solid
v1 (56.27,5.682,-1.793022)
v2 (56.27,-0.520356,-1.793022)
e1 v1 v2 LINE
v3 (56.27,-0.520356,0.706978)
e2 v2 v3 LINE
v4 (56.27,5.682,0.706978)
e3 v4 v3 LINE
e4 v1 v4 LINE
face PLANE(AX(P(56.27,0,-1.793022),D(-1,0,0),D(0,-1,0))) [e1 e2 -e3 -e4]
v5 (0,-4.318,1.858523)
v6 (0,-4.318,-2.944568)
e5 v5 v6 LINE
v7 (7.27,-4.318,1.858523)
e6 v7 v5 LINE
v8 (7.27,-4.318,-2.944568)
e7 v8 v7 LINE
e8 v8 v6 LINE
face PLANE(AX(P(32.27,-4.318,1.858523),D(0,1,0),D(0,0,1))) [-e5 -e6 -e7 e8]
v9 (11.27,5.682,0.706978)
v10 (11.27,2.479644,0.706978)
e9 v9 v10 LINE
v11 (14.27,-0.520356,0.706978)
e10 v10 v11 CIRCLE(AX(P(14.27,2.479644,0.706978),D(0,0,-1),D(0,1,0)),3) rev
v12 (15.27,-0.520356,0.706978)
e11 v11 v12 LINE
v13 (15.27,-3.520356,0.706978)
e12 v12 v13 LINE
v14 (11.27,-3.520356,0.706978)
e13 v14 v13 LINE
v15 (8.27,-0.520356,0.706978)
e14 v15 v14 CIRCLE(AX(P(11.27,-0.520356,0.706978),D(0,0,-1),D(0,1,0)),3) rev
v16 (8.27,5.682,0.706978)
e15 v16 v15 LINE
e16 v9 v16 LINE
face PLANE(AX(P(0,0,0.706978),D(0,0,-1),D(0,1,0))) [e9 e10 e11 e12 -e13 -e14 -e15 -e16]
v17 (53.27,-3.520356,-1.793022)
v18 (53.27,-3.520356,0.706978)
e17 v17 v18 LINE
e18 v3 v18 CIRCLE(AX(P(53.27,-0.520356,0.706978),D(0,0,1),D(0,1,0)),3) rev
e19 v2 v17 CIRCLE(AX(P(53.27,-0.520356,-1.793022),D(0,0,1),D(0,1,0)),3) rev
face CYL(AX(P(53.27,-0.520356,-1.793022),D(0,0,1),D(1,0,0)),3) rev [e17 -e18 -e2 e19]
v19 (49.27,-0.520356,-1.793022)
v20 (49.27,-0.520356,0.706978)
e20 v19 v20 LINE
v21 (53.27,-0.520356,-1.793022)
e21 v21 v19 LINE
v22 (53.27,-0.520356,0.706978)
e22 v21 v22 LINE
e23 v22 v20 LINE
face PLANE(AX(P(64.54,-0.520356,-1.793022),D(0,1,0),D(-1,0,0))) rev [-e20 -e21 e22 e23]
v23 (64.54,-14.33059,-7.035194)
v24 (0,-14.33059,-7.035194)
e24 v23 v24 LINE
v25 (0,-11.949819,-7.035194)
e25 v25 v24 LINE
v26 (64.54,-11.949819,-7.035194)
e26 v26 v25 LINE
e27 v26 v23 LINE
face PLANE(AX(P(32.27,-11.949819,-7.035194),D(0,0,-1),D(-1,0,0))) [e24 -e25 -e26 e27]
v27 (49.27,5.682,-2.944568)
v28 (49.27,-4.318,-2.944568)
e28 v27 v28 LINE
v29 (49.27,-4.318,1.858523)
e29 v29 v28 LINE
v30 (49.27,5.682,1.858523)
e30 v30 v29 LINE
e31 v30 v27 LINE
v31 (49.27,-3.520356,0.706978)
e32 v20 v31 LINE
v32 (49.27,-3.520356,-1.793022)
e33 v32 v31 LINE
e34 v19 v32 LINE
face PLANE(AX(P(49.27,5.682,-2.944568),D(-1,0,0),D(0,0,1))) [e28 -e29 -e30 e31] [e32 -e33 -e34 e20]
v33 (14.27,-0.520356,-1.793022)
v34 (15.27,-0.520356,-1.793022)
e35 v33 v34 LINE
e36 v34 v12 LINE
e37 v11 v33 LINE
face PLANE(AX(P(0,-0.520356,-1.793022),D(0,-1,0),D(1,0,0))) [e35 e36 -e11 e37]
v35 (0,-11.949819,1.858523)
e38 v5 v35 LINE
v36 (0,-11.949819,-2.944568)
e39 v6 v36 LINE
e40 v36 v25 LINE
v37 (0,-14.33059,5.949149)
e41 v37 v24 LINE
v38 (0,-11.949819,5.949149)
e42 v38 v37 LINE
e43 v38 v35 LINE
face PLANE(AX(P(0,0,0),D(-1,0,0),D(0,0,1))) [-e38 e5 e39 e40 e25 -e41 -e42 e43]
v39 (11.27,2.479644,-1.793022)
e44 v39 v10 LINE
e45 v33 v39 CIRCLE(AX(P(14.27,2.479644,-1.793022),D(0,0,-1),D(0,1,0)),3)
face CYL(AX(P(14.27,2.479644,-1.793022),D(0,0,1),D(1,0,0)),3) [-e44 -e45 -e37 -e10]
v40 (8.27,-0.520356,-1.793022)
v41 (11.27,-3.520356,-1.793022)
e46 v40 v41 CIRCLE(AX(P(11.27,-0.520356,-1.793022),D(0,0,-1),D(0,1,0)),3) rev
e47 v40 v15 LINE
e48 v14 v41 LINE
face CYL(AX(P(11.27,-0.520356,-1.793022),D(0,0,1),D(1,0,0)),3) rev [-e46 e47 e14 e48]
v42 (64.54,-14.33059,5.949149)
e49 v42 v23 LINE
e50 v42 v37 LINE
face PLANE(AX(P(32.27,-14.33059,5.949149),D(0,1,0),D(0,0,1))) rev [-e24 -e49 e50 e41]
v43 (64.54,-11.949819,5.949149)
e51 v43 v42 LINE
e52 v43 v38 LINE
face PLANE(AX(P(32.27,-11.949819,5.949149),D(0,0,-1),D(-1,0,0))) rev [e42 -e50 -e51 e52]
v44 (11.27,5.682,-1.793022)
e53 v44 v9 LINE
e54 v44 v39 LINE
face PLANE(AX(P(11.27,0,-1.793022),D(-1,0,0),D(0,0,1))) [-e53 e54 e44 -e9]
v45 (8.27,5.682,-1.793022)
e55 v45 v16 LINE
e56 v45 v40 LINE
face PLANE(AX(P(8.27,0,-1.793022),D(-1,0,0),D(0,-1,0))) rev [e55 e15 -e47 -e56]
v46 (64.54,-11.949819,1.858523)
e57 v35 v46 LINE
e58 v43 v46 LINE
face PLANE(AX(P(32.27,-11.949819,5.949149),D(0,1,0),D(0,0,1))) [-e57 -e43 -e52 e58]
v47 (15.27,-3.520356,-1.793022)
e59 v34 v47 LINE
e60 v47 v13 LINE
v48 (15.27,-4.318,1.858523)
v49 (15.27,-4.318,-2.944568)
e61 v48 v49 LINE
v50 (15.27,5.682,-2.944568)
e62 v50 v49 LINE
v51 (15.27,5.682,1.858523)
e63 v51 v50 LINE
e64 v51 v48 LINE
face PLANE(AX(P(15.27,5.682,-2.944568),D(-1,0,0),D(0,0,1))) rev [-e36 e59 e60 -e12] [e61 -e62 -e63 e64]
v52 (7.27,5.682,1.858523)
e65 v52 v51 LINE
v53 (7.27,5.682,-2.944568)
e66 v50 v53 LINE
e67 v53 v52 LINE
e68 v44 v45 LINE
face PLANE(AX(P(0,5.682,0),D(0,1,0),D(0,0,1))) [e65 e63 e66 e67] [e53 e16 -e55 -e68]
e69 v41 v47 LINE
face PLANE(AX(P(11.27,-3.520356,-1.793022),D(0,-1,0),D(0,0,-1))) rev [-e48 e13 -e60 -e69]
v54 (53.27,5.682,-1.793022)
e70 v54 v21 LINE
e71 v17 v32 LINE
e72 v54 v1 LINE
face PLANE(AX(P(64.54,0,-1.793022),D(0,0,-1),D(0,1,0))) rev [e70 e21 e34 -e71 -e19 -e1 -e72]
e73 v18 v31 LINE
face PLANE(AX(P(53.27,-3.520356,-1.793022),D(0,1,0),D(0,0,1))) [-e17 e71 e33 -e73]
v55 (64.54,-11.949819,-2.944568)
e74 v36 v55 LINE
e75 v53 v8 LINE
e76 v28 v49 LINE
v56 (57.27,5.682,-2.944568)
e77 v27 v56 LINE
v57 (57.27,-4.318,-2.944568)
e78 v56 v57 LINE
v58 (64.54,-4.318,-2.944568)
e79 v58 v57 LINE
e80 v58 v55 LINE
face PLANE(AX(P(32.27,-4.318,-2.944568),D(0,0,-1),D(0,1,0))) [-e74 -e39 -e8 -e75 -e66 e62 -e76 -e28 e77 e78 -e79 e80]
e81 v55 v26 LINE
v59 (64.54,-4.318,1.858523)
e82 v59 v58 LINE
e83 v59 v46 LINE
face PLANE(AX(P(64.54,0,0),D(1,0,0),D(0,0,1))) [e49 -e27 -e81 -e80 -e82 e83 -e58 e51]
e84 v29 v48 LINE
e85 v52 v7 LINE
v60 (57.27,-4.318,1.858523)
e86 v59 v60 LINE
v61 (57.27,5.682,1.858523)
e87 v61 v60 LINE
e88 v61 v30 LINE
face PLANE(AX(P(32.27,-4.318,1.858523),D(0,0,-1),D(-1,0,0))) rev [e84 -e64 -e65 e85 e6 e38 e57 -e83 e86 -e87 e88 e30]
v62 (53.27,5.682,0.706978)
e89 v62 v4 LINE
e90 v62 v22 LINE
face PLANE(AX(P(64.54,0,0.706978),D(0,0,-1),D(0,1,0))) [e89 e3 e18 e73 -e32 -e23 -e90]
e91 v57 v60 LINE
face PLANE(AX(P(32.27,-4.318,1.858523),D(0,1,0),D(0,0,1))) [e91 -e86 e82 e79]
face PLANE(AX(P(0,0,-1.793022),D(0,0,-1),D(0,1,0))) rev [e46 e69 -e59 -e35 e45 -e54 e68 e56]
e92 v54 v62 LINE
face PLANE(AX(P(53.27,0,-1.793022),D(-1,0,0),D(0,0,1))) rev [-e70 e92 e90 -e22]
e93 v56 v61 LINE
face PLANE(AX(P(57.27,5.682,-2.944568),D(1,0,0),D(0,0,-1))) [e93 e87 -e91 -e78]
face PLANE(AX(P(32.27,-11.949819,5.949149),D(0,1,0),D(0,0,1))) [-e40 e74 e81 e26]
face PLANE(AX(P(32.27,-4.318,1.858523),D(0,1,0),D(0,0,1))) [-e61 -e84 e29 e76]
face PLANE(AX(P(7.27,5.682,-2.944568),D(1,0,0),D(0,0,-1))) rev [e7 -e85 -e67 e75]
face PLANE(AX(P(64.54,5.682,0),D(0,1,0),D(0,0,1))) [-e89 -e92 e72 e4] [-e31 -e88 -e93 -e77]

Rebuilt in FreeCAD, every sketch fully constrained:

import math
import FreeCAD as App
import Part
import Sketcher
from FreeCAD import Vector


def edges_at(feature, points):
    """Names of the edges that pass closest to the given points."""
    edges = feature.Shape.Edges
    near = lambda p: min(range(len(edges)), key=lambda i: edges[i].distToShape(Part.Vertex(*p))[0])
    return sorted({f"Edge{near(p) + 1}" for p in points})


def add_polygon(sketch, points):
    """Adds a closed chain of lines whose ends are joined by coincident constraints."""
    first, n = sketch.GeometryCount, len(points)
    for a, b in zip(points, points[1:] + points[:1]):
        sketch.addGeometry(Part.LineSegment(App.Vector(*a, 0), App.Vector(*b, 0)), False)
    for i in range(n):
        sketch.addConstraint(Sketcher.Constraint("Coincident", first + i, 2, first + (i + 1) % n, 1))

doc = App.newDocument("Part")
body = doc.addObject("PartDesign::Body", "Body")

sketch1 = doc.addObject("Sketcher::SketchObject", "Sketch")
body.addObject(sketch1)
sketch1.AttachmentSupport = (doc.YZ_Plane, [""])
sketch1.MapMode = "FlatFace"
add_polygon(sketch1, [(-11.949819, 5.949149), (-14.33059, 5.949149), (-14.33059, -7.035194), (-11.949819, -7.035194), (-11.949819, -2.944568), (-4.318, -2.944568), (-4.318, 1.858523), (-11.949819, 1.858523)])
sketch1.addConstraint([
    Sketcher.Constraint("Horizontal", 0),
    Sketcher.Constraint("Vertical", 1),
    Sketcher.Constraint("Horizontal", 2),
    Sketcher.Constraint("Vertical", 3),
    Sketcher.Constraint("Horizontal", 4),
    Sketcher.Constraint("Vertical", 5),
    Sketcher.Constraint("Horizontal", 6),
    Sketcher.Constraint("Vertical", 7),
    Sketcher.Constraint("Vertical", 3, 2, 6, 2),
    Sketcher.Constraint("Equal", 3, 7),
    Sketcher.Constraint("DistanceX", 4, 2, -1, 1, 4.318),
    Sketcher.Constraint("DistanceX", 0, 2, 0, 1, 2.380771),
    Sketcher.Constraint("DistanceX", 4, 1, 4, 2, 7.631819),
    Sketcher.Constraint("DistanceY", 5, 1, 5, 2, 4.803092),
    Sketcher.Constraint("DistanceY", 1, 2, 1, 1, 12.984343),
    Sketcher.Constraint("DistanceY", -1, 1, 0, 2, 5.949149),
])
pad1 = doc.addObject("PartDesign::Pad", "Pad")
body.addObject(pad1)
pad1.Profile = sketch1
pad1.Length = 32.27

sketch2 = doc.addObject("Sketcher::SketchObject", "Sketch001")
body.addObject(sketch2)
sketch2.AttachmentSupport = (doc.XZ_Plane, [""])
sketch2.MapMode = "FlatFace"
sketch2.AttachmentOffset = App.Placement(Vector(0, 0, 4.318), App.Rotation())
add_polygon(sketch2, [(7.27, -2.944568), (7.27, 1.858523), (15.27, 1.858523), (15.27, -2.944568)])
sketch2.addConstraint([
    Sketcher.Constraint("Vertical", 0),
    Sketcher.Constraint("Horizontal", 1),
    Sketcher.Constraint("Vertical", 2),
    Sketcher.Constraint("Horizontal", 3),
    Sketcher.Constraint("DistanceX", 1, 1, 1, 2, 8.0),
    Sketcher.Constraint("DistanceX", -1, 1, 0, 2, 7.27),
    Sketcher.Constraint("DistanceY", 0, 1, 0, 2, 4.803092),
    Sketcher.Constraint("DistanceY", 2, 2, -1, 1, 2.944568),
])
pad2 = doc.addObject("PartDesign::Pad", "Pad001")
body.addObject(pad2)
pad2.Profile = sketch2
pad2.Length = 10
pad2.Reversed = True

sketch3 = doc.addObject("Sketcher::SketchObject", "Sketch002")
body.addObject(sketch3)
sketch3.AttachmentSupport = (doc.XY_Plane, [""])
sketch3.MapMode = "FlatFace"
sketch3.AttachmentOffset = App.Placement(Vector(0, 0, -0.543022), App.Rotation())
sketch3.addGeometry([
    Part.LineSegment(Vector(11.27, 5.682, 0), Vector(8.27, 5.682, 0)),
    Part.LineSegment(Vector(8.27, 5.682, 0), Vector(8.27, -0.520356, 0)),
    Part.ArcOfCircle(Part.Circle(Vector(11.27, -0.520356, 0), Vector(0, 0, 1), 3), math.radians(180), math.radians(270)),
    Part.LineSegment(Vector(11.27, -3.520356, 0), Vector(15.27, -3.520356, 0)),
    Part.LineSegment(Vector(15.27, -3.520356, 0), Vector(15.27, -0.520356, 0)),
    Part.LineSegment(Vector(15.27, -0.520356, 0), Vector(11.27, -0.520356, 0)),
    Part.LineSegment(Vector(11.27, -0.520356, 0), Vector(11.27, 5.682, 0)),
], False)
sketch3.addConstraint([
    Sketcher.Constraint("Coincident", 0, 2, 1, 1),
    Sketcher.Constraint("Tangent", 1, 2, 2, 1),
    Sketcher.Constraint("Tangent", 2, 2, 3, 1),
    Sketcher.Constraint("Coincident", 3, 2, 4, 1),
    Sketcher.Constraint("Coincident", 4, 2, 5, 1),
    Sketcher.Constraint("Coincident", 5, 2, 6, 1),
    Sketcher.Constraint("Coincident", 6, 2, 0, 1),
    Sketcher.Constraint("Horizontal", 0),
    Sketcher.Constraint("Vertical", 1),
    Sketcher.Constraint("Horizontal", 3),
    Sketcher.Constraint("Vertical", 4),
    Sketcher.Constraint("Horizontal", 5),
    Sketcher.Constraint("Vertical", 6),
    Sketcher.Constraint("Coincident", 5, 2, 2, 3),
    Sketcher.Constraint("Radius", 2, 3.0),
    Sketcher.Constraint("DistanceX", 3, 1, 3, 2, 4.0),
    Sketcher.Constraint("DistanceX", -1, 1, 2, 3, 11.27),
    Sketcher.Constraint("DistanceY", -1, 1, 0, 2, 5.682),
    Sketcher.Constraint("DistanceY", 1, 2, 1, 1, 6.202356),
])
pocket1 = doc.addObject("PartDesign::Pocket", "Pocket")
body.addObject(pocket1)
pocket1.Profile = sketch3
pocket1.Length = 2.5
pocket1.Midplane = True
doc.recompute()

fillet = doc.addObject("PartDesign::Fillet", "Fillet")
body.addObject(fillet)
fillet.Base = (pocket1, edges_at(pocket1, [(11.27, -0.52, -0.543)]))
fillet.Radius = 3
doc.recompute()

datumplane = doc.addObject("PartDesign::Plane", "DatumPlane")
body.addObject(datumplane)
datumplane.AttachmentSupport = (doc.YZ_Plane, [""])
datumplane.MapMode = "FlatFace"
datumplane.AttachmentOffset = App.Placement(Vector(0, 0, 32.27), App.Rotation())
mirrored = doc.addObject("PartDesign::Mirrored", "Mirrored")
body.addObject(mirrored)
mirrored.Originals = [pad1, pad2, pocket1]
mirrored.MirrorPlane = (datumplane, [""])
body.Tip = mirrored

doc.recompute()
